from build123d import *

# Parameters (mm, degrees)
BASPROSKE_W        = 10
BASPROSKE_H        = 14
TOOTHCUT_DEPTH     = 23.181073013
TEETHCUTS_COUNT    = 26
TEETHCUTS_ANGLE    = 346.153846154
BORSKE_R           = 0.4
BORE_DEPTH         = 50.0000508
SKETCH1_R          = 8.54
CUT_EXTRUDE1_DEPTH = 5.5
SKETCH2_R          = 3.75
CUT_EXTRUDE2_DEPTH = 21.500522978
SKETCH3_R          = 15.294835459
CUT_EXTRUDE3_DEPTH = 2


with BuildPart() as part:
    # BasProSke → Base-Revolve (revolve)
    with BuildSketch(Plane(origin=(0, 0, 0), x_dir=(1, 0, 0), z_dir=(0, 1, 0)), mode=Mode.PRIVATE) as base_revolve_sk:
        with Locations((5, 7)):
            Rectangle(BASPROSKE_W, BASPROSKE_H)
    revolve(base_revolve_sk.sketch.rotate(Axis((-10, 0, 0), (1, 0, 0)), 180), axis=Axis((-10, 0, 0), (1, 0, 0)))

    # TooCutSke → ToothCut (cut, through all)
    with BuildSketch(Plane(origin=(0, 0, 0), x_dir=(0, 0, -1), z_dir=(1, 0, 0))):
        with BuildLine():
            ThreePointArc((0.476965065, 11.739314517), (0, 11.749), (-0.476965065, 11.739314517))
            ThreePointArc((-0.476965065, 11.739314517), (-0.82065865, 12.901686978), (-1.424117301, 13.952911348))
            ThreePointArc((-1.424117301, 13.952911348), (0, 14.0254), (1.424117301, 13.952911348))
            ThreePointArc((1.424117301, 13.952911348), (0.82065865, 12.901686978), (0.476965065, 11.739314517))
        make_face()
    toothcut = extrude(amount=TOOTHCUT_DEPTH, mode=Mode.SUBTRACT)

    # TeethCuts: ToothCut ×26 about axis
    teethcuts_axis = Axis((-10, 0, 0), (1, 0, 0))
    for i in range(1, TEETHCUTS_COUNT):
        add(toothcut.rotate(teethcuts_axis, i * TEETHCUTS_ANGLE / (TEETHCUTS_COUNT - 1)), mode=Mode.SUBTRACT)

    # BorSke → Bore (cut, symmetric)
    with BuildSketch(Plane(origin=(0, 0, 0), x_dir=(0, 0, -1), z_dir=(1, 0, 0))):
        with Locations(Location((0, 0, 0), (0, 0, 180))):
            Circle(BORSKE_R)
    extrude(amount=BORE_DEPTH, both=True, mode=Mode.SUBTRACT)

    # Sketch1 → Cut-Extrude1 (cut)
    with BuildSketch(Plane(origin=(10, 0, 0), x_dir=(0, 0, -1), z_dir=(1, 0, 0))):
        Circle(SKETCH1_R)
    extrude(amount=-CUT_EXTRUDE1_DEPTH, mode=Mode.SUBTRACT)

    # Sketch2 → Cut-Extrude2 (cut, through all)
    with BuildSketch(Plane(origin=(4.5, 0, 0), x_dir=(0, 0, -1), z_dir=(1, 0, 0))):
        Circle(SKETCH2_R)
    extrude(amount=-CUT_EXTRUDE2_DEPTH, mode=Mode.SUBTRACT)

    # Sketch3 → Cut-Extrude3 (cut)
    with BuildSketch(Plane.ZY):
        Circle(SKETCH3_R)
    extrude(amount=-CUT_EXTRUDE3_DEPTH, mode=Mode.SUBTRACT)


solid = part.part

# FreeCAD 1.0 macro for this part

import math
import FreeCAD as App
import Part
import Sketcher
Q = App.Units.Quantity


def add_polygon(sketch, points):
    """Adds a closed chain of lines whose ends are joined by coincident constraints."""
    first, n = sketch.GeometryCount, len(points)
    for a, b in zip(points, points[1:] + points[:1]):
        sketch.addGeometry(Part.LineSegment(App.Vector(*a, 0), App.Vector(*b, 0)), False)
    for i in range(n):
        sketch.addConstraint(Sketcher.Constraint("Coincident", first + i, 2, first + (i + 1) % n, 1))

doc = App.newDocument("Part")
body = doc.addObject("PartDesign::Body", "Body")

# Sketch on XZ plane
sketch1 = body.newObject("Sketcher::SketchObject", "Sketch")
sketch1.AttachmentSupport = (doc.getObject("XZ_Plane"), [""])
sketch1.MapMode = "FlatFace"
add_polygon(sketch1, [(0, -14), (0, 0), (10, 0), (10, -14)])  # lines 0-3
sketch1.addConstraint(Sketcher.Constraint("Vertical", 0))
sketch1.addConstraint(Sketcher.Constraint("Horizontal", 1))
sketch1.addConstraint(Sketcher.Constraint("Vertical", 2))
sketch1.addConstraint(Sketcher.Constraint("Horizontal", 3))
sketch1.addConstraint(Sketcher.Constraint("Coincident", 0, 2, -1, 1))
sketch1.addConstraint(Sketcher.Constraint("DistanceX", 1, 1, 1, 2, Q("10 mm")))
sketch1.addConstraint(Sketcher.Constraint("DistanceY", 0, 1, 0, 2, Q("14 mm")))
revolution = body.newObject("PartDesign::Revolution", "Revolution")
revolution.Profile = sketch1
revolution.ReferenceAxis = (sketch1, ["H_Axis"])
revolution.Angle = 360

# Sketch on YZ plane
sketch2 = body.newObject("Sketcher::SketchObject", "Sketch001")
sketch2.AttachmentSupport = (doc.getObject("YZ_Plane"), [""])
sketch2.MapMode = "FlatFace"
sketch2.addGeometry(Part.ArcOfCircle(Part.Circle(App.Vector(0, 0, 0), App.Vector(0, 0, 1), 11.749), math.radians(-2.326632), math.radians(2.326632)), False)
sketch2.addGeometry(Part.ArcOfCircle(Part.Circle(App.Vector(10.856102, -5.60141, 0), App.Vector(0, 0, 1), 5.2), math.radians(53.448851), math.radians(80.220991)), False)
sketch2.addGeometry(Part.ArcOfCircle(Part.Circle(App.Vector(0, 0, 0), App.Vector(0, 0, 1), 14.0254), math.radians(-5.827768), math.radians(5.827768)), False)
sketch2.addGeometry(Part.ArcOfCircle(Part.Circle(App.Vector(10.856102, 5.60141, 0), App.Vector(0, 0, 1), 5.2), math.radians(-80.220991), math.radians(-53.448851)), False)
sketch2.addConstraint(Sketcher.Constraint("Coincident", 0, 1, 1, 2))
sketch2.addConstraint(Sketcher.Constraint("Coincident", 1, 1, 2, 1))
sketch2.addConstraint(Sketcher.Constraint("Coincident", 2, 2, 3, 2))
sketch2.addConstraint(Sketcher.Constraint("Coincident", 3, 1, 0, 2))
sketch2.addConstraint(Sketcher.Constraint("Coincident", 0, 3, -1, 1))
sketch2.addConstraint(Sketcher.Constraint("Coincident", 2, 3, -1, 1))
sketch2.addConstraint(Sketcher.Constraint("Equal", 1, 3))
sketch2.addConstraint(Sketcher.Constraint("Symmetric", 1, 3, 3, 3, -1))
sketch2.addConstraint(Sketcher.Constraint("Radius", 1, Q("5.2 mm")))
sketch2.addConstraint(Sketcher.Constraint("Radius", 0, Q("11.749 mm")))
sketch2.addConstraint(Sketcher.Constraint("Radius", 2, Q("14.0254 mm")))
sketch2.addConstraint(Sketcher.Constraint("DistanceY", 1, 3, -1, 1, Q("5.60141 mm")))
sketch2.addConstraint(Sketcher.Constraint("DistanceX", -1, 1, 1, 1, Q("13.952911 mm")))
pocket1 = body.newObject("PartDesign::Pocket", "Pocket")
pocket1.Profile = sketch2
pocket1.Type = "ThroughAll"
pocket1.Reversed = True
doc.recompute()

polarpattern = body.newObject("PartDesign::PolarPattern", "PolarPattern")
polarpattern.Originals = [pocket1]
polarpattern.Axis = (doc.getObject("X_Axis"), [""])
polarpattern.Angle = 360
polarpattern.Occurrences = 26
body.Tip = polarpattern

# Sketch on YZ plane
sketch3 = body.newObject("Sketcher::SketchObject", "Sketch002")
sketch3.AttachmentSupport = (doc.getObject("YZ_Plane"), [""])
sketch3.MapMode = "FlatFace"
sketch3.addGeometry(Part.Circle(App.Vector(0, 0, 0), App.Vector(0, 0, 1), 0.4), False)
sketch3.addConstraint(Sketcher.Constraint("Coincident", 0, 3, -1, 1))
sketch3.addConstraint(Sketcher.Constraint("Diameter", 0, Q("0.8 mm")))
pocket2 = body.newObject("PartDesign::Pocket", "Pocket001")
pocket2.Profile = sketch3
pocket2.Length = 100.000102
pocket2.Midplane = True

# Sketch on YZ plane
sketch4 = body.newObject("Sketcher::SketchObject", "Sketch003")
sketch4.AttachmentSupport = (doc.getObject("YZ_Plane"), [""])
sketch4.MapMode = "FlatFace"
sketch4.AttachmentOffset = App.Placement(App.Vector(0, 0, 10), App.Rotation())
sketch4.addGeometry(Part.Circle(App.Vector(0, 0, 0), App.Vector(0, 0, 1), 8.54), False)
sketch4.addConstraint(Sketcher.Constraint("Coincident", 0, 3, -1, 1))
sketch4.addConstraint(Sketcher.Constraint("Diameter", 0, Q("17.08 mm")))
pocket3 = body.newObject("PartDesign::Pocket", "Pocket002")
pocket3.Profile = sketch4
pocket3.Length = 5.5

# Sketch on YZ plane
sketch5 = body.newObject("Sketcher::SketchObject", "Sketch004")
sketch5.AttachmentSupport = (doc.getObject("YZ_Plane"), [""])
sketch5.MapMode = "FlatFace"
sketch5.AttachmentOffset = App.Placement(App.Vector(0, 0, 4.5), App.Rotation())
sketch5.addGeometry(Part.Circle(App.Vector(0, 0, 0), App.Vector(0, 0, 1), 3.75), False)
sketch5.addConstraint(Sketcher.Constraint("Coincident", 0, 3, -1, 1))
sketch5.addConstraint(Sketcher.Constraint("Diameter", 0, Q("7.5 mm")))
pocket4 = body.newObject("PartDesign::Pocket", "Pocket003")
pocket4.Profile = sketch5
pocket4.Type = "ThroughAll"

# Sketch on YZ plane
sketch6 = body.newObject("Sketcher::SketchObject", "Sketch005")
sketch6.AttachmentSupport = (doc.getObject("YZ_Plane"), [""])
sketch6.MapMode = "FlatFace"
sketch6.addGeometry(Part.Circle(App.Vector(0, 0, 0), App.Vector(0, 0, 1), 15.294835), False)
sketch6.addConstraint(Sketcher.Constraint("Coincident", 0, 3, -1, 1))
sketch6.addConstraint(Sketcher.Constraint("Diameter", 0, Q("30.589671 mm")))
pocket5 = body.newObject("PartDesign::Pocket", "Pocket004")
pocket5.Profile = sketch6
pocket5.Length = 2
pocket5.Reversed = True

doc.recompute()
